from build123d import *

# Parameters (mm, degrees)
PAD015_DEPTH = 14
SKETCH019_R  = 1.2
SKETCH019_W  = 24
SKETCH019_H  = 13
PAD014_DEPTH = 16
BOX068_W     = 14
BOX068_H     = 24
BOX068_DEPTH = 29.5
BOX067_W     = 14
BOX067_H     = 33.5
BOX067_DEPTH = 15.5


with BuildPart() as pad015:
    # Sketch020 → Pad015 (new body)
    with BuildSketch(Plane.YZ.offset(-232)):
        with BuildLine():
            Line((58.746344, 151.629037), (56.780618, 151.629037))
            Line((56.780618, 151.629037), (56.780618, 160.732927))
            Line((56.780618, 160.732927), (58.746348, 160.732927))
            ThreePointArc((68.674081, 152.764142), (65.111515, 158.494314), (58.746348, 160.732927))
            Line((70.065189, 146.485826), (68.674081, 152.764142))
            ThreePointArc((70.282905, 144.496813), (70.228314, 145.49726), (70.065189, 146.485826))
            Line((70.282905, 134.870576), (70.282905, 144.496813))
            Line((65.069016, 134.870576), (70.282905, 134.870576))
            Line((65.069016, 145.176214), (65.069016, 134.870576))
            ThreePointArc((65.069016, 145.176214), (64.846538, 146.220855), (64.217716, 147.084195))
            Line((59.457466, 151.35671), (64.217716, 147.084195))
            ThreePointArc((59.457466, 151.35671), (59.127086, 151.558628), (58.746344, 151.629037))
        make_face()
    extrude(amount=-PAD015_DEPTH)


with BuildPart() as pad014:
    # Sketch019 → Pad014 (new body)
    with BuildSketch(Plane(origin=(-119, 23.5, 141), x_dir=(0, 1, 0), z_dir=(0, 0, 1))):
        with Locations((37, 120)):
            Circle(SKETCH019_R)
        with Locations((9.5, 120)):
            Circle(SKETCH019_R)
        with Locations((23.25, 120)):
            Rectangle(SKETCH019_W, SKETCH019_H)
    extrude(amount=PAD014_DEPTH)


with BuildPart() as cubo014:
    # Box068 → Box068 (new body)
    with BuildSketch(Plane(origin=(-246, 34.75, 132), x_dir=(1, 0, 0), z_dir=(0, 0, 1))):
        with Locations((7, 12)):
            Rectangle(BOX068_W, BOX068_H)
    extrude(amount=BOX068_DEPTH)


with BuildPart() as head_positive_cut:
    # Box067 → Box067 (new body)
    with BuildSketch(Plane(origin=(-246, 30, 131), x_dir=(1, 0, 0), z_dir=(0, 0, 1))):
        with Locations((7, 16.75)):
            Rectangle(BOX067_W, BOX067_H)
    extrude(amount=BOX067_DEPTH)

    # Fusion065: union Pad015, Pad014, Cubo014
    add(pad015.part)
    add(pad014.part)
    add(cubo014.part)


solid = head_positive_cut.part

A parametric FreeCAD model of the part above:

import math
import FreeCAD as App
import Part
import Sketcher
from FreeCAD import Vector
Q = App.Units.Quantity


def add_polygon(sketch, points):
    """Adds a closed chain of lines whose ends are joined by coincident constraints."""
    first, n = sketch.GeometryCount, len(points)
    for a, b in zip(points, points[1:] + points[:1]):
        sketch.addGeometry(Part.LineSegment(App.Vector(*a, 0), App.Vector(*b, 0)), False)
    for i in range(n):
        sketch.addConstraint(Sketcher.Constraint("Coincident", first + i, 2, first + (i + 1) % n, 1))

doc = App.newDocument("Part")
params = doc.addObject("Spreadsheet::Sheet", "Params")
for row, (alias, value) in enumerate([
    ("pad1_length", "14 mm"),
    ("sketch2_diameter", "2.4 mm"),
    ("sketch2_width", "13 mm"),
    ("sketch2_height", "24 mm"),
    ("pad2_length", "16 mm"),
    ("sketch3_width", "14 mm"),
    ("sketch3_height", "24 mm"),
    ("pad3_length", "29.5 mm"),
    ("sketch4_width", "14 mm"),
    ("sketch4_height", "33.5 mm"),
    ("pad4_length", "15.5 mm"),
], start=1):
    params.set(f"A{row}", alias)
    params.set(f"B{row}", "=" + value)
    params.setAlias(f"B{row}", alias)

body = doc.addObject("PartDesign::Body", "Body")

sketch1 = body.newObject("Sketcher::SketchObject", "Sketch")
sketch1.AttachmentSupport = (doc.getObject("YZ_Plane"), [""])
sketch1.MapMode = "FlatFace"
sketch1.AttachmentOffset = App.Placement(Vector(0, 0, -232), App.Rotation())
sketch1.addGeometry(Part.LineSegment(Vector(56.8, 151.6, 0), Vector(58.7, 151.6, 0)), False)
sketch1.addGeometry(Part.ArcOfCircle(Part.Circle(Vector(58.7, 150.6, 0), Vector(0, 0, 1), 1.1), math.radians(48), math.radians(90)), False)
sketch1.addGeometry(Part.LineSegment(Vector(59.5, 151.4, 0), Vector(64.2, 147.1, 0)), False)
sketch1.addGeometry(Part.ArcOfCircle(Part.Circle(Vector(62.5, 145.2, 0), Vector(0, 0, 1), 2.6), math.radians(0), math.radians(48)), False)
sketch1.addGeometry(Part.LineSegment(Vector(65.1, 145.2, 0), Vector(65.1, 134.9, 0)), False)
sketch1.addGeometry(Part.LineSegment(Vector(65.1, 134.9, 0), Vector(70.3, 134.9, 0)), False)
sketch1.addGeometry(Part.LineSegment(Vector(70.3, 134.9, 0), Vector(70.3, 144.5, 0)), False)
sketch1.addGeometry(Part.ArcOfCircle(Part.Circle(Vector(61.1, 144.5, 0), Vector(0, 0, 1), 9.2), math.radians(0), math.radians(12.49)), False)
sketch1.addGeometry(Part.LineSegment(Vector(70.1, 146.5, 0), Vector(68.7, 152.8, 0)), False)
sketch1.addGeometry(Part.ArcOfCircle(Part.Circle(Vector(58.7, 150.6, 0), Vector(0, 0, 1), 10.2), math.radians(12), math.radians(90)), False)
sketch1.addGeometry(Part.LineSegment(Vector(58.7, 160.7, 0), Vector(56.8, 160.7, 0)), False)
sketch1.addGeometry(Part.LineSegment(Vector(56.8, 160.7, 0), Vector(56.8, 151.6, 0)), False)
sketch1.addConstraint(Sketcher.Constraint("Coincident", 0, 2, 1, 2))
sketch1.addConstraint(Sketcher.Constraint("Coincident", 1, 1, 2, 1))
sketch1.addConstraint(Sketcher.Constraint("Tangent", 2, 2, 3, 2))
sketch1.addConstraint(Sketcher.Constraint("Tangent", 3, 1, 4, 1))
sketch1.addConstraint(Sketcher.Constraint("Coincident", 4, 2, 5, 1))
sketch1.addConstraint(Sketcher.Constraint("Coincident", 5, 2, 6, 1))
sketch1.addConstraint(Sketcher.Constraint("Tangent", 6, 2, 7, 1))
sketch1.addConstraint(Sketcher.Constraint("Tangent", 7, 2, 8, 1))
sketch1.addConstraint(Sketcher.Constraint("Tangent", 8, 2, 9, 1))
sketch1.addConstraint(Sketcher.Constraint("Tangent", 9, 2, 10, 1))
sketch1.addConstraint(Sketcher.Constraint("Coincident", 10, 2, 11, 1))
sketch1.addConstraint(Sketcher.Constraint("Coincident", 11, 2, 0, 1))
sketch1.addConstraint(Sketcher.Constraint("Horizontal", 0))
sketch1.addConstraint(Sketcher.Constraint("Vertical", 4))
sketch1.addConstraint(Sketcher.Constraint("Horizontal", 5))
sketch1.addConstraint(Sketcher.Constraint("Vertical", 6))
sketch1.addConstraint(Sketcher.Constraint("Horizontal", 10))
sketch1.addConstraint(Sketcher.Constraint("Vertical", 11))
sketch1.addConstraint(Sketcher.Constraint("Coincident", 9, 3, 1, 3))
sketch1.addConstraint(Sketcher.Constraint("Radius", 3, Q("2.563789 mm")))
sketch1.addConstraint(Sketcher.Constraint("Radius", 1, Q("1.064617 mm")))
sketch1.addConstraint(Sketcher.Constraint("Radius", 7, Q("9.194466 mm")))
sketch1.addConstraint(Sketcher.Constraint("Radius", 9, Q("10.168515 mm")))
sketch1.addConstraint(Sketcher.Constraint("DistanceX", 5, 1, 5, 2, Q("5.213889 mm")))
sketch1.addConstraint(Sketcher.Constraint("DistanceX", 10, 2, 10, 1, Q("1.96573 mm")))
sketch1.addConstraint(Sketcher.Constraint("DistanceY", 3, 3, 9, 3, Q("5.388199 mm")))
sketch1.addConstraint(Sketcher.Constraint("DistanceX", 2, 2, 3, 1, Q("0.8513 mm")))
sketch1.addConstraint(Sketcher.Constraint("DistanceY", 7, 3, 3, 1, Q("0.679399 mm")))
sketch1.addConstraint(Sketcher.Constraint("DistanceX", 0, 1, 0, 2, Q("1.965726 mm")))
sketch1.addConstraint(Sketcher.Constraint("DistanceY", 4, 2, 4, 1, Q("10.305638 mm")))
sketch1.addConstraint(Sketcher.Constraint("DistanceX", -1, 1, 1, 3, Q("58.74635 mm")))
sketch1.addConstraint(Sketcher.Constraint("DistanceY", -1, 1, 1, 3, Q("150.56442 mm")))
sketch1.addConstraint(Sketcher.Constraint("DistanceY", -1, 1, 1, 1, Q("151.35671 mm")))
pad1 = body.newObject("PartDesign::Pad", "Pad")
pad1.Profile = sketch1
pad1.setExpression("Length", "Params.pad1_length")
pad1.Reversed = True
body2 = doc.addObject("PartDesign::Body", "Body001")
body2.AllowCompound = True

sketch2 = body2.newObject("Sketcher::SketchObject", "Sketch001")
sketch2.AttachmentSupport = (doc.getObject("XY_Plane001"), [""])
sketch2.MapMode = "FlatFace"
sketch2.AttachmentOffset = App.Placement(Vector(0, 0, 141), App.Rotation())
sketch2.addGeometry(Part.Circle(Vector(-239, 60.5, 0), Vector(0, 0, 1), 1.2), False)
sketch2.addGeometry(Part.Circle(Vector(-239, 33, 0), Vector(0, 0, 1), 1.2), False)
add_polygon(sketch2, [(-245.5, 34.8), (-232.5, 34.8), (-232.5, 58.8), (-245.5, 58.8)])
sketch2.addConstraint(Sketcher.Constraint("Horizontal", 2))
sketch2.addConstraint(Sketcher.Constraint("Vertical", 3))
sketch2.addConstraint(Sketcher.Constraint("Horizontal", 4))
sketch2.addConstraint(Sketcher.Constraint("Vertical", 5))
sketch2.addConstraint(Sketcher.Constraint("Equal", 0, 1))
sketch2.addConstraint(Sketcher.Constraint("Vertical", 0, 3, 1, 3))
sketch2.addConstraint(Sketcher.Constraint("Diameter", 0, Q("2.4 mm")))
sketch2.addConstraint(Sketcher.Constraint("DistanceX", 2, 1, 2, 2, Q("13 mm")))
sketch2.addConstraint(Sketcher.Constraint("DistanceY", 3, 1, 3, 2, Q("24 mm")))
sketch2.addConstraint(Sketcher.Constraint("DistanceX", 0, 3, -1, 1, Q("239 mm")))
sketch2.addConstraint(Sketcher.Constraint("DistanceY", -1, 1, 1, 3, Q("33 mm")))
sketch2.addConstraint(Sketcher.Constraint("DistanceY", -1, 1, 0, 3, Q("60.5 mm")))
sketch2.addConstraint(Sketcher.Constraint("DistanceX", 2, 2, -1, 1, Q("232.5 mm")))
sketch2.addConstraint(Sketcher.Constraint("DistanceY", -1, 1, 2, 2, Q("34.75 mm")))
sketch2.setExpression("Constraints[10]", "Params.sketch2_diameter")
sketch2.setExpression("Constraints[11]", "Params.sketch2_width")
sketch2.setExpression("Constraints[12]", "Params.sketch2_height")
pad2 = body2.newObject("PartDesign::Pad", "Pad001")
pad2.Profile = sketch2
pad2.setExpression("Length", "Params.pad2_length")
body3 = doc.addObject("PartDesign::Body", "Body002")

sketch3 = body3.newObject("Sketcher::SketchObject", "Sketch002")
sketch3.AttachmentSupport = (doc.getObject("XY_Plane002"), [""])
sketch3.MapMode = "FlatFace"
sketch3.AttachmentOffset = App.Placement(Vector(0, 0, 132), App.Rotation())
add_polygon(sketch3, [(-246, 59), (-246, 35), (-232, 35), (-232, 59)])
sketch3.addConstraint(Sketcher.Constraint("Vertical", 0))
sketch3.addConstraint(Sketcher.Constraint("Horizontal", 1))
sketch3.addConstraint(Sketcher.Constraint("Vertical", 2))
sketch3.addConstraint(Sketcher.Constraint("Horizontal", 3))
sketch3.addConstraint(Sketcher.Constraint("DistanceX", 1, 1, 1, 2, Q("14 mm")))
sketch3.addConstraint(Sketcher.Constraint("DistanceY", 0, 2, 0, 1, Q("24 mm")))
sketch3.addConstraint(Sketcher.Constraint("DistanceX", 0, 2, -1, 1, Q("246 mm")))
sketch3.addConstraint(Sketcher.Constraint("DistanceY", -1, 1, 0, 2, Q("34.75 mm")))
sketch3.setExpression("Constraints[8]", "Params.sketch3_width")
sketch3.setExpression("Constraints[9]", "Params.sketch3_height")
pad3 = body3.newObject("PartDesign::Pad", "Pad002")
pad3.Profile = sketch3
pad3.setExpression("Length", "Params.pad3_length")
body4 = doc.addObject("PartDesign::Body", "Body003")
body4.AllowCompound = True

sketch4 = body4.newObject("Sketcher::SketchObject", "Sketch003")
sketch4.AttachmentSupport = (doc.getObject("XY_Plane003"), [""])
sketch4.MapMode = "FlatFace"
sketch4.AttachmentOffset = App.Placement(Vector(0, 0, 131), App.Rotation())
add_polygon(sketch4, [(-246, 64), (-246, 30), (-232, 30), (-232, 64)])
sketch4.addConstraint(Sketcher.Constraint("Vertical", 0))
sketch4.addConstraint(Sketcher.Constraint("Horizontal", 1))
sketch4.addConstraint(Sketcher.Constraint("Vertical", 2))
sketch4.addConstraint(Sketcher.Constraint("Horizontal", 3))
sketch4.addConstraint(Sketcher.Constraint("DistanceX", 1, 1, 1, 2, Q("14 mm")))
sketch4.addConstraint(Sketcher.Constraint("DistanceY", 0, 2, 0, 1, Q("33.5 mm")))
sketch4.addConstraint(Sketcher.Constraint("DistanceX", 0, 2, -1, 1, Q("246 mm")))
sketch4.addConstraint(Sketcher.Constraint("DistanceY", -1, 1, 0, 2, Q("30 mm")))
sketch4.setExpression("Constraints[8]", "Params.sketch4_width")
sketch4.setExpression("Constraints[9]", "Params.sketch4_height")
pad4 = body4.newObject("PartDesign::Pad", "Pad003")
pad4.Profile = sketch4
pad4.setExpression("Length", "Params.pad4_length")
doc.recompute()

boolean = body4.newObject("PartDesign::Boolean", "Boolean")
boolean.Type = "Fuse"
boolean.addObjects([body])
doc.recompute()

boolean2 = body4.newObject("PartDesign::Boolean", "Boolean001")
boolean2.Type = "Fuse"
boolean2.addObjects([body2])
doc.recompute()

boolean3 = body4.newObject("PartDesign::Boolean", "Boolean002")
boolean3.Type = "Fuse"
boolean3.addObjects([body3])

doc.recompute()
